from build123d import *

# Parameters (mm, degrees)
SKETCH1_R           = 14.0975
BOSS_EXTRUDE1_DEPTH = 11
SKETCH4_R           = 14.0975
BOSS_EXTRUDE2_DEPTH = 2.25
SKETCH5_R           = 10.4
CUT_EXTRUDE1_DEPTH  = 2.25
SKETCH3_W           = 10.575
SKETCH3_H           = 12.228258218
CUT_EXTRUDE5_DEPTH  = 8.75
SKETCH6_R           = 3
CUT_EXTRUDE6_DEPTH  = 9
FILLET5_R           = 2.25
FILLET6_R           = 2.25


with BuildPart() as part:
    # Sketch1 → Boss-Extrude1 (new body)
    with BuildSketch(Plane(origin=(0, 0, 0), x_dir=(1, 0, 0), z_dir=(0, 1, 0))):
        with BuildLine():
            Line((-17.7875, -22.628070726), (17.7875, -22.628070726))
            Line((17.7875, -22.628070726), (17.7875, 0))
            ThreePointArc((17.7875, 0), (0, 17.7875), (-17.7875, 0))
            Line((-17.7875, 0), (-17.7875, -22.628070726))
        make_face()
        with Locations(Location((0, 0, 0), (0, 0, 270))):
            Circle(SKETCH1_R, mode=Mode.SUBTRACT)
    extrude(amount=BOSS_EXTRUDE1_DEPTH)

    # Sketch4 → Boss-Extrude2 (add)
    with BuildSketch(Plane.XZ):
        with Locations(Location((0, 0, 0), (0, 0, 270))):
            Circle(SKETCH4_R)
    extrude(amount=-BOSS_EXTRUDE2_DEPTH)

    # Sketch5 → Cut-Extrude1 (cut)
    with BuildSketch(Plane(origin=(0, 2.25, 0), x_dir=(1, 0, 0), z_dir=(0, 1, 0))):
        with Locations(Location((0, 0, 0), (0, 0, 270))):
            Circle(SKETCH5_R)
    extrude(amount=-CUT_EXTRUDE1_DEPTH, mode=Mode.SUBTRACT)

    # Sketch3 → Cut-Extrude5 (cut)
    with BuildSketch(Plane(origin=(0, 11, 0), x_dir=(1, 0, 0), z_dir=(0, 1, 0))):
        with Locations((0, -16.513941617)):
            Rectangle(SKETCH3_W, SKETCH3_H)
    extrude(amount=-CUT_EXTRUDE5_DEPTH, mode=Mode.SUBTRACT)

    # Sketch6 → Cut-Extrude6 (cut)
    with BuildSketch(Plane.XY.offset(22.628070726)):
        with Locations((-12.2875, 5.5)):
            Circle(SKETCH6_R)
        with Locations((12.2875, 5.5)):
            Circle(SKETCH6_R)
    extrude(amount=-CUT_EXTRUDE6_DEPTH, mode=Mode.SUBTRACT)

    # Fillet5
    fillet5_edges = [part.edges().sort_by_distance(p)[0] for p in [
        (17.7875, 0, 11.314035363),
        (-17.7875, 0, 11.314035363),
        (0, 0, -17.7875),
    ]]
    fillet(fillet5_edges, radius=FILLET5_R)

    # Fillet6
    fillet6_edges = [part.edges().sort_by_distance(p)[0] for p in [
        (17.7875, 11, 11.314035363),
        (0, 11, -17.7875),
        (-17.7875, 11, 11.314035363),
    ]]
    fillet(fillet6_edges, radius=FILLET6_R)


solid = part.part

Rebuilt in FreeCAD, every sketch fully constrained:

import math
import FreeCAD as App
import Part
import Sketcher


def edges_at(feature, points):
    """Names of the edges that pass closest to the given points."""
    edges = feature.Shape.Edges
    near = lambda p: min(range(len(edges)), key=lambda i: edges[i].distToShape(Part.Vertex(*p))[0])
    return sorted({f"Edge{near(p) + 1}" for p in points})


def add_polygon(sketch, points):
    """Adds a closed chain of lines whose ends are joined by coincident constraints."""
    first, n = sketch.GeometryCount, len(points)
    for a, b in zip(points, points[1:] + points[:1]):
        sketch.addGeometry(Part.LineSegment(App.Vector(*a, 0), App.Vector(*b, 0)), False)
    for i in range(n):
        sketch.addConstraint(Sketcher.Constraint("Coincident", first + i, 2, first + (i + 1) % n, 1))

doc = App.newDocument("Part")
body = doc.addObject("PartDesign::Body", "Body")

sketch1 = body.newObject("Sketcher::SketchObject", "Sketch")
sketch1.AttachmentSupport = (doc.getObject("XZ_Plane"), [""])
sketch1.MapMode = "FlatFace"
sketch1.addGeometry([
    Part.LineSegment(App.Vector(-18, 23, 0), App.Vector(18, 23, 0)),
    Part.LineSegment(App.Vector(18, 23, 0), App.Vector(18, 0, 0)),
    Part.ArcOfCircle(Part.Circle(App.Vector(0, 0, 0), App.Vector(0, 0, 1), 18), math.radians(180), math.radians(360)),
    Part.LineSegment(App.Vector(-18, 0, 0), App.Vector(-18, 23, 0)),
    Part.Circle(App.Vector(0, 0, 0), App.Vector(0, 0, 1), 14),
], False)
sketch1.addConstraint([
    Sketcher.Constraint("Coincident", 0, 2, 1, 1),
    Sketcher.Constraint("Tangent", 1, 2, 2, 2),
    Sketcher.Constraint("Tangent", 2, 1, 3, 1),
    Sketcher.Constraint("Coincident", 3, 2, 0, 1),
    Sketcher.Constraint("Horizontal", 0),
    Sketcher.Constraint("Vertical", 1),
    Sketcher.Constraint("Vertical", 3),
    Sketcher.Constraint("Coincident", 2, 3, -1, 1),
    Sketcher.Constraint("Coincident", 4, 3, -1, 1),
    Sketcher.Constraint("Diameter", 4, 28.195),
    Sketcher.Constraint("Radius", 2, 17.7875),
    Sketcher.Constraint("DistanceY", 1, 2, 1, 1, 22.628071),
])
pad1 = body.newObject("PartDesign::Pad", "Pad")
pad1.Profile = sketch1
pad1.Length = 11
pad1.Reversed = True

sketch2 = body.newObject("Sketcher::SketchObject", "Sketch001")
sketch2.AttachmentSupport = (doc.getObject("XZ_Plane"), [""])
sketch2.MapMode = "FlatFace"
sketch2.addGeometry(Part.Circle(App.Vector(0, 0, 0), App.Vector(0, 0, 1), 14), False)
sketch2.addConstraint([
    Sketcher.Constraint("Coincident", 0, 3, -1, 1),
    Sketcher.Constraint("Diameter", 0, 28.195),
])
pad2 = body.newObject("PartDesign::Pad", "Pad001")
pad2.Profile = sketch2
pad2.Length = 2.25
pad2.Reversed = True

sketch3 = body.newObject("Sketcher::SketchObject", "Sketch002")
sketch3.AttachmentSupport = (doc.getObject("XZ_Plane"), [""])
sketch3.MapMode = "FlatFace"
sketch3.AttachmentOffset = App.Placement(App.Vector(0, 0, -2.25), App.Rotation())
sketch3.addGeometry(Part.Circle(App.Vector(0, 0, 0), App.Vector(0, 0, 1), 10), False)
sketch3.addConstraint([
    Sketcher.Constraint("Coincident", 0, 3, -1, 1),
    Sketcher.Constraint("Diameter", 0, 20.8),
])
pocket1 = body.newObject("PartDesign::Pocket", "Pocket")
pocket1.Profile = sketch3
pocket1.Length = 2.25
pocket1.Reversed = True

sketch4 = body.newObject("Sketcher::SketchObject", "Sketch003")
sketch4.AttachmentSupport = (doc.getObject("XZ_Plane"), [""])
sketch4.MapMode = "FlatFace"
sketch4.AttachmentOffset = App.Placement(App.Vector(0, 0, -11), App.Rotation())
add_polygon(sketch4, [(-5, 10), (-5, 23), (5, 23), (5, 10)])
sketch4.addConstraint([
    Sketcher.Constraint("Vertical", 0),
    Sketcher.Constraint("Horizontal", 1),
    Sketcher.Constraint("Vertical", 2),
    Sketcher.Constraint("Horizontal", 3),
    Sketcher.Constraint("DistanceX", 1, 1, 1, 2, 10.575),
    Sketcher.Constraint("DistanceY", 0, 1, 0, 2, 12.228258),
    Sketcher.Constraint("DistanceX", 0, 2, -1, 1, 5.2875),
    Sketcher.Constraint("DistanceY", -1, 1, 0, 2, 22.628071),
])
pocket2 = body.newObject("PartDesign::Pocket", "Pocket001")
pocket2.Profile = sketch4
pocket2.Length = 8.75
pocket2.Reversed = True

sketch5 = body.newObject("Sketcher::SketchObject", "Sketch004")
sketch5.AttachmentSupport = (doc.getObject("XY_Plane"), [""])
sketch5.MapMode = "FlatFace"
sketch5.AttachmentOffset = App.Placement(App.Vector(0, 0, 22.628071), App.Rotation())
sketch5.addGeometry([
    Part.Circle(App.Vector(-12.3, 5.5, 0), App.Vector(0, 0, 1), 3),
    Part.Circle(App.Vector(12.3, 5.5, 0), App.Vector(0, 0, 1), 3),
], False)
sketch5.addConstraint([
    Sketcher.Constraint("Equal", 0, 1),
    Sketcher.Constraint("Symmetric", 0, 3, 1, 3, -2),
    Sketcher.Constraint("Diameter", 0, 6.0),
    Sketcher.Constraint("DistanceY", -1, 1, 0, 3, 5.5),
    Sketcher.Constraint("DistanceX", 0, 3, 1, 3, 24.575),
])
pocket3 = body.newObject("PartDesign::Pocket", "Pocket002")
pocket3.Profile = sketch5
pocket3.Length = 9
doc.recompute()

fillet = body.newObject("PartDesign::Fillet", "Fillet")
fillet.Base = (pocket3, edges_at(pocket3, [(17.788, 0, 11.314), (-17.788, 0, 11.314), (0, 0, -17.788)]))
fillet.Radius = 2.25
doc.recompute()

fillet2 = body.newObject("PartDesign::Fillet", "Fillet001")
fillet2.Base = (fillet, edges_at(fillet, [(17.788, 11, 11.314), (0, 11, -17.788), (-17.788, 11, 11.314)]))
fillet2.Radius = 2.25

doc.recompute()
